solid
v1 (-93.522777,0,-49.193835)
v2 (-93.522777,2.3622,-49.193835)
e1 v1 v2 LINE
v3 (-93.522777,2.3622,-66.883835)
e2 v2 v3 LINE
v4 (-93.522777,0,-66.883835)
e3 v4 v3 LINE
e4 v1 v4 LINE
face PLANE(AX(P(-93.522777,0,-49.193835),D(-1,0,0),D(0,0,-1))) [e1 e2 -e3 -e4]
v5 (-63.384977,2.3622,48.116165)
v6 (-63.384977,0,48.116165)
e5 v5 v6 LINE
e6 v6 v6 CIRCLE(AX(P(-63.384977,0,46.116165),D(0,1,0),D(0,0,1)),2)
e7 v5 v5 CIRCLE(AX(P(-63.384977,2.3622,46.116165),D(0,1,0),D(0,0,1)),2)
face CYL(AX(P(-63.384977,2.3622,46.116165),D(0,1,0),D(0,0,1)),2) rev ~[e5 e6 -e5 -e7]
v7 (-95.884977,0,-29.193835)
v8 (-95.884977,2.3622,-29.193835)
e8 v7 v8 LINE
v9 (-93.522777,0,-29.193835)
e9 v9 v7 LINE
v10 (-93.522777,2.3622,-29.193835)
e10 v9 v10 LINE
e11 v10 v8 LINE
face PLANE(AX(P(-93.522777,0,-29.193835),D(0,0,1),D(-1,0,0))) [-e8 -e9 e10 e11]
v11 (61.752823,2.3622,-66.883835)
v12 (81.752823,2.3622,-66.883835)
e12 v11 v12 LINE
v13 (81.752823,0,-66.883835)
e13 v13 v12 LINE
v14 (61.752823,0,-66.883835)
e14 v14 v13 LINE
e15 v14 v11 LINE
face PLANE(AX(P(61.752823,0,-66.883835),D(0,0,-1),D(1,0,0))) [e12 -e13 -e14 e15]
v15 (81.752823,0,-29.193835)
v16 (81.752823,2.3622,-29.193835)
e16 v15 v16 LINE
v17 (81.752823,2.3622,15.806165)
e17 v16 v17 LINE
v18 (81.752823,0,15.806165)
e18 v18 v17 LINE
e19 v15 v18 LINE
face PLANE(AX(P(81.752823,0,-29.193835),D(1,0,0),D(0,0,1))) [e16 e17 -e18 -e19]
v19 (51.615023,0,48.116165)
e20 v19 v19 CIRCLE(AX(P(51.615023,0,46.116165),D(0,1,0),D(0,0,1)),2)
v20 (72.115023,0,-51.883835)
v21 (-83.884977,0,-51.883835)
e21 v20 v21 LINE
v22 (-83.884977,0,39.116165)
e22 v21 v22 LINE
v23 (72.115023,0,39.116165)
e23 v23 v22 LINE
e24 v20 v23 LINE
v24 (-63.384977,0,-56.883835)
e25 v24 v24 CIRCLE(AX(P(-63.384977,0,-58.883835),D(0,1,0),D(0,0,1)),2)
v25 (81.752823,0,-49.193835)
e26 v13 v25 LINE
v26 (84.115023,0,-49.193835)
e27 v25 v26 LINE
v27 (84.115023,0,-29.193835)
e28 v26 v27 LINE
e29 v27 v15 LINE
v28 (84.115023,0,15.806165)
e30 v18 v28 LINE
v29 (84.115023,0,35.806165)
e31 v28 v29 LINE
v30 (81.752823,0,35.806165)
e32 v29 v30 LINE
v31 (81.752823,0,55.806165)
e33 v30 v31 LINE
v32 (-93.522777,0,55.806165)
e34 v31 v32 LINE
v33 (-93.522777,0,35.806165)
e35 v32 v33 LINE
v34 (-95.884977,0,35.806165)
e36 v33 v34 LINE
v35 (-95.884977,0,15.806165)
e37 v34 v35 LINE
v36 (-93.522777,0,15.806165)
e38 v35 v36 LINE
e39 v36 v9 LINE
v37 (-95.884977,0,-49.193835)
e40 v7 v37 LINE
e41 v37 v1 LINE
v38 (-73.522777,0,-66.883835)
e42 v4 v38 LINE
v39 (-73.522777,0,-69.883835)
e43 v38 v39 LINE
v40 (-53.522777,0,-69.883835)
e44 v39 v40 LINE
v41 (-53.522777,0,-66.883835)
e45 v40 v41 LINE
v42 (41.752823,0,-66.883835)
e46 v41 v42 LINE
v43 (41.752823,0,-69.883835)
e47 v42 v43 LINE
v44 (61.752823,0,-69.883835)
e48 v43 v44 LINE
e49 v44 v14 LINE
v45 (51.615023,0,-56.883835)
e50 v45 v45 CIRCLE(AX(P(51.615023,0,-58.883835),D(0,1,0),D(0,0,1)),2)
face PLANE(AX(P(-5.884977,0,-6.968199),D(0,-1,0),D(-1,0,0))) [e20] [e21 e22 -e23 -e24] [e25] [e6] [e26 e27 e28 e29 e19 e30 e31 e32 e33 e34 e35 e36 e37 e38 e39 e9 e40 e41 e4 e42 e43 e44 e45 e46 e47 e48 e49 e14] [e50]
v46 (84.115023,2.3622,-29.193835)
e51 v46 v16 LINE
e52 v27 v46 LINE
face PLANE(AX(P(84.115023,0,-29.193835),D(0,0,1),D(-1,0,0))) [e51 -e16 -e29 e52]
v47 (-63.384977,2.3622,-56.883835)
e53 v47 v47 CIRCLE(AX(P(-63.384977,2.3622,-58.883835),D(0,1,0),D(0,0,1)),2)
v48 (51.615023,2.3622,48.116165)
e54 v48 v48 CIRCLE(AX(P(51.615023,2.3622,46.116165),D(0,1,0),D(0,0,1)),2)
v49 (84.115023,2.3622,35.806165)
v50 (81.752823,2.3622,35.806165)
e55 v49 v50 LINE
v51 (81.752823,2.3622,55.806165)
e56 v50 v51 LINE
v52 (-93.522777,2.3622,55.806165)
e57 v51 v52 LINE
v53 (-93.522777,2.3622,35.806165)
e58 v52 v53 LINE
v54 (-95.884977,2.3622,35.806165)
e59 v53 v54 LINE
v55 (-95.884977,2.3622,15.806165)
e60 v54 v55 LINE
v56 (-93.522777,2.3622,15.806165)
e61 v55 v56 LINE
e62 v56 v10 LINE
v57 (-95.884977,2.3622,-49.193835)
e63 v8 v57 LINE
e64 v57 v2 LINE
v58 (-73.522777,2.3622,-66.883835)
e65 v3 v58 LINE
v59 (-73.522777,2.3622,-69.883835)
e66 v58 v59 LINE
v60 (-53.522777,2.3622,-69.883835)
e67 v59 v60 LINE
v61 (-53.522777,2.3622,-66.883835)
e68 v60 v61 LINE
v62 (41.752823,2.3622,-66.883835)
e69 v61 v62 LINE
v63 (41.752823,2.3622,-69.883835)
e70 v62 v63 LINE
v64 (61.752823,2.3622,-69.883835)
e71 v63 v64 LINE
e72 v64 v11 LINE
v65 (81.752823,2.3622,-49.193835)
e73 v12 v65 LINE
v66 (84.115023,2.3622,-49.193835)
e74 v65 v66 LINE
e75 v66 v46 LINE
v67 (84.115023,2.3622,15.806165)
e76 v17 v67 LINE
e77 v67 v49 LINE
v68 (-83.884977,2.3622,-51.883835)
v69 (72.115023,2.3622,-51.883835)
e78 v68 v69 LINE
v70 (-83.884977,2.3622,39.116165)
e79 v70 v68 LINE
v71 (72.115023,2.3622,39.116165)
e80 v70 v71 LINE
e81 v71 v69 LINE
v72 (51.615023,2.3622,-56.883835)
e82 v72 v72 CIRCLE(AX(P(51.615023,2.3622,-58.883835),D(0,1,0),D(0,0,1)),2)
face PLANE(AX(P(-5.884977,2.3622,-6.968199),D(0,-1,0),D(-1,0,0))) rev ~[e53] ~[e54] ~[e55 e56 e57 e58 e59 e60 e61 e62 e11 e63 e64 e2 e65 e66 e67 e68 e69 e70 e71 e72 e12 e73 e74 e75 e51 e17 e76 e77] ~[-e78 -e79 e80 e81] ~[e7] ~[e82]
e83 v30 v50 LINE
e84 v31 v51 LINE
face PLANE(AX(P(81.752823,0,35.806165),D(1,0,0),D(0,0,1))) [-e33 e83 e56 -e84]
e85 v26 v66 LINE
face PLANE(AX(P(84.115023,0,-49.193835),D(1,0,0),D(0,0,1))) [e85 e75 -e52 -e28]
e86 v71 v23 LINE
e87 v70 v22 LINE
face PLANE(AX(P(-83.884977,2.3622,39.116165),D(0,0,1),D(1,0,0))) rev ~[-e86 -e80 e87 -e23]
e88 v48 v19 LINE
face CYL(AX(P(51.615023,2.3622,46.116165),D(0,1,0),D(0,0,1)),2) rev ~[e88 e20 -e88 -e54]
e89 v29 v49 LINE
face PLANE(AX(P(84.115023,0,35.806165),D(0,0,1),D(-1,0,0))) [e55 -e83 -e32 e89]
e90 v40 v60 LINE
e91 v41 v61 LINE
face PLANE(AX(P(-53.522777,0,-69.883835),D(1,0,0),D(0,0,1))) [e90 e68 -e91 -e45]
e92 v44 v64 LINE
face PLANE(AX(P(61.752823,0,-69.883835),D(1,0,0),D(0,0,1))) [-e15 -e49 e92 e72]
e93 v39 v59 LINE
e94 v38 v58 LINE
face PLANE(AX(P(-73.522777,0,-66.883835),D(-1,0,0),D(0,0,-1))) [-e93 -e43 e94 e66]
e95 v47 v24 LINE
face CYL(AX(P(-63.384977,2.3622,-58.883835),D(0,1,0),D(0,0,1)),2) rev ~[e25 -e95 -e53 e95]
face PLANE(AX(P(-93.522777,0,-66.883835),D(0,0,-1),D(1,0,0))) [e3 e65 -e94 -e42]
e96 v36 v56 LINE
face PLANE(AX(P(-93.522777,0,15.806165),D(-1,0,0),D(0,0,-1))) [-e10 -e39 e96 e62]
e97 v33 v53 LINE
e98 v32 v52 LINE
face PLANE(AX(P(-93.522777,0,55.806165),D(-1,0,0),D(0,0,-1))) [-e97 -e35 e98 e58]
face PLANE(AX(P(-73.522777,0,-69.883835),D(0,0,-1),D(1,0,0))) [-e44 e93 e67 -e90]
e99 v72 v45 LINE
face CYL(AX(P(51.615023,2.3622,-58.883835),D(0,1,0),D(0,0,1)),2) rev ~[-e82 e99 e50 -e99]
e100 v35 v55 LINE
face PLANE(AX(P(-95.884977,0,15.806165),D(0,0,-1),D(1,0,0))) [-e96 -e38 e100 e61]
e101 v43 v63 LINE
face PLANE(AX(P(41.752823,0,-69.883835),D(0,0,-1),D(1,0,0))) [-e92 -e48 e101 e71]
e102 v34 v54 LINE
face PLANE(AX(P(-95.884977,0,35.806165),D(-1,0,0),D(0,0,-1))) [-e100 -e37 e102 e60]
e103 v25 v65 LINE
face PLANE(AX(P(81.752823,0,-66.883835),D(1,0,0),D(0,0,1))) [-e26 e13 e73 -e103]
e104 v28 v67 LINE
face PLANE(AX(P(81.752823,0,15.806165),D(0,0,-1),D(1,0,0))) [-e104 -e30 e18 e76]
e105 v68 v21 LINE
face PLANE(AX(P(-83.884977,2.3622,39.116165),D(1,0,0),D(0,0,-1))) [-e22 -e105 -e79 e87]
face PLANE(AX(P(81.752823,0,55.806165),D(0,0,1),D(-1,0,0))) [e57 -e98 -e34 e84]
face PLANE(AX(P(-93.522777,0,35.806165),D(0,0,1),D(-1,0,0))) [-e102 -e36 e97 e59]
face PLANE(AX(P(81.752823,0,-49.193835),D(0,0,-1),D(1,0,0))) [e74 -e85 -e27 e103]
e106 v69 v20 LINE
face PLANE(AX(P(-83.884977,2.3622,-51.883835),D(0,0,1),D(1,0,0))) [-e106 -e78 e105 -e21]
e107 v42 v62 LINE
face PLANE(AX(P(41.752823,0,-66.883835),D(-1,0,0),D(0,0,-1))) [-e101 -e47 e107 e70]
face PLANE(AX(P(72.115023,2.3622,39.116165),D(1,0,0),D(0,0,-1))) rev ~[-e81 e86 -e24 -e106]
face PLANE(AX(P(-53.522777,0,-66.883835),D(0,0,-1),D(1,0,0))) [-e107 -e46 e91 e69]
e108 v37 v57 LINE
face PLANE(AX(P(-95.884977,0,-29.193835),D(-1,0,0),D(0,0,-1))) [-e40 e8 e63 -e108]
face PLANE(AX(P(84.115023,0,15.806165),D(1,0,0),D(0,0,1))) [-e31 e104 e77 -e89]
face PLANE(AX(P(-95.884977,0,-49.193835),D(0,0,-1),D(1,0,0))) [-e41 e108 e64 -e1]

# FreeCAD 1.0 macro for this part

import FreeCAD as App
import Part
import Sketcher

V = App.Vector
Q = App.Units.Quantity

doc = App.newDocument("Part")
body = doc.addObject("PartDesign::Body", "Body")

sketch1 = doc.addObject("Sketcher::SketchObject", "Sketch")
body.addObject(sketch1)
sketch1.AttachmentSupport = (doc.XZ_Plane, [""])
sketch1.MapMode = "FlatFace"
sketch1.addGeometry([
    Part.LineSegment(V(-73.522777, -66.883835, 0), V(-93.522777, -66.883835, 0)),
    Part.LineSegment(V(-93.522777, -66.883835, 0), V(-93.522777, -49.193835, 0)),
    Part.LineSegment(V(-93.522777, -49.193835, 0), V(-95.884977, -49.193835, 0)),
    Part.LineSegment(V(-95.884977, -49.193835, 0), V(-95.884977, -29.193835, 0)),
    Part.LineSegment(V(-95.884977, -29.193835, 0), V(-93.522777, -29.193835, 0)),
    Part.LineSegment(V(-93.522777, -29.193835, 0), V(-93.522777, 15.806165, 0)),
    Part.LineSegment(V(-93.522777, 15.806165, 0), V(-95.884977, 15.806165, 0)),
    Part.LineSegment(V(-95.884977, 15.806165, 0), V(-95.884977, 35.806165, 0)),
    Part.LineSegment(V(-95.884977, 35.806165, 0), V(-93.522777, 35.806165, 0)),
    Part.LineSegment(V(-93.522777, 35.806165, 0), V(-93.522777, 55.806165, 0)),
    Part.LineSegment(V(-93.522777, 55.806165, 0), V(81.752823, 55.806165, 0)),
    Part.LineSegment(V(81.752823, 55.806165, 0), V(81.752823, 35.806165, 0)),
    Part.LineSegment(V(81.752823, 35.806165, 0), V(84.115023, 35.806165, 0)),
    Part.LineSegment(V(84.115023, 35.806165, 0), V(84.115023, 15.806165, 0)),
    Part.LineSegment(V(84.115023, 15.806165, 0), V(81.752823, 15.806165, 0)),
    Part.LineSegment(V(81.752823, 15.806165, 0), V(81.752823, -29.193835, 0)),
    Part.LineSegment(V(81.752823, -29.193835, 0), V(84.115023, -29.193835, 0)),
    Part.LineSegment(V(84.115023, -29.193835, 0), V(84.115023, -49.193835, 0)),
    Part.LineSegment(V(84.115023, -49.193835, 0), V(81.752823, -49.193835, 0)),
    Part.LineSegment(V(81.752823, -49.193835, 0), V(81.752823, -66.883835, 0)),
    Part.LineSegment(V(81.752823, -66.883835, 0), V(61.752823, -66.883835, 0)),
    Part.LineSegment(V(61.752823, -66.883835, 0), V(61.752823, -69.883835, 0)),
    Part.LineSegment(V(61.752823, -69.883835, 0), V(41.752823, -69.883835, 0)),
    Part.LineSegment(V(41.752823, -69.883835, 0), V(41.752823, -66.883835, 0)),
    Part.LineSegment(V(41.752823, -66.883835, 0), V(-53.522777, -66.883835, 0)),
    Part.LineSegment(V(-53.522777, -66.883835, 0), V(-53.522777, -69.883835, 0)),
    Part.LineSegment(V(-53.522777, -69.883835, 0), V(-73.522777, -69.883835, 0)),
    Part.LineSegment(V(-73.522777, -69.883835, 0), V(-73.522777, -66.883835, 0)),
], False)
sketch1.addConstraint([
    Sketcher.Constraint("Coincident", 0, 2, 1, 1),
    Sketcher.Constraint("Coincident", 1, 2, 2, 1),
    Sketcher.Constraint("Coincident", 2, 2, 3, 1),
    Sketcher.Constraint("Coincident", 3, 2, 4, 1),
    Sketcher.Constraint("Coincident", 4, 2, 5, 1),
    Sketcher.Constraint("Coincident", 5, 2, 6, 1),
    Sketcher.Constraint("Coincident", 6, 2, 7, 1),
    Sketcher.Constraint("Coincident", 7, 2, 8, 1),
    Sketcher.Constraint("Coincident", 8, 2, 9, 1),
    Sketcher.Constraint("Coincident", 9, 2, 10, 1),
    Sketcher.Constraint("Coincident", 10, 2, 11, 1),
    Sketcher.Constraint("Coincident", 11, 2, 12, 1),
    Sketcher.Constraint("Coincident", 12, 2, 13, 1),
    Sketcher.Constraint("Coincident", 13, 2, 14, 1),
    Sketcher.Constraint("Coincident", 14, 2, 15, 1),
    Sketcher.Constraint("Coincident", 15, 2, 16, 1),
    Sketcher.Constraint("Coincident", 16, 2, 17, 1),
    Sketcher.Constraint("Coincident", 17, 2, 18, 1),
    Sketcher.Constraint("Coincident", 18, 2, 19, 1),
    Sketcher.Constraint("Coincident", 19, 2, 20, 1),
    Sketcher.Constraint("Coincident", 20, 2, 21, 1),
    Sketcher.Constraint("Coincident", 21, 2, 22, 1),
    Sketcher.Constraint("Coincident", 22, 2, 23, 1),
    Sketcher.Constraint("Coincident", 23, 2, 24, 1),
    Sketcher.Constraint("Coincident", 24, 2, 25, 1),
    Sketcher.Constraint("Coincident", 25, 2, 26, 1),
    Sketcher.Constraint("Coincident", 26, 2, 27, 1),
    Sketcher.Constraint("Coincident", 27, 2, 0, 1),
    Sketcher.Constraint("Horizontal", 0),
    Sketcher.Constraint("Vertical", 1),
    Sketcher.Constraint("Horizontal", 2),
    Sketcher.Constraint("Vertical", 3),
    Sketcher.Constraint("Horizontal", 4),
    Sketcher.Constraint("Vertical", 5),
    Sketcher.Constraint("Horizontal", 6),
    Sketcher.Constraint("Vertical", 7),
    Sketcher.Constraint("Horizontal", 8),
    Sketcher.Constraint("Vertical", 9),
    Sketcher.Constraint("Horizontal", 10),
    Sketcher.Constraint("Vertical", 11),
    Sketcher.Constraint("Horizontal", 12),
    Sketcher.Constraint("Vertical", 13),
    Sketcher.Constraint("Horizontal", 14),
    Sketcher.Constraint("Vertical", 15),
    Sketcher.Constraint("Horizontal", 16),
    Sketcher.Constraint("Vertical", 17),
    Sketcher.Constraint("Horizontal", 18),
    Sketcher.Constraint("Vertical", 19),
    Sketcher.Constraint("Horizontal", 20),
    Sketcher.Constraint("Vertical", 21),
    Sketcher.Constraint("Horizontal", 22),
    Sketcher.Constraint("Vertical", 23),
    Sketcher.Constraint("Horizontal", 24),
    Sketcher.Constraint("Vertical", 25),
    Sketcher.Constraint("Horizontal", 26),
    Sketcher.Constraint("Vertical", 27),
    Sketcher.Constraint("Horizontal", 8, 2, 11, 2),
    Sketcher.Constraint("Horizontal", 6, 2, 13, 2),
    Sketcher.Constraint("Horizontal", 4, 2, 15, 2),
    Sketcher.Constraint("Horizontal", 2, 2, 17, 2),
    Sketcher.Constraint("Horizontal", 0, 2, 19, 2),
    Sketcher.Constraint("Horizontal", 20, 2, 23, 2),
    Sketcher.Constraint("Horizontal", 22, 2, 25, 2),
    Sketcher.Constraint("Vertical", 1, 2, 4, 2),
    Sketcher.Constraint("Vertical", 3, 2, 6, 2),
    Sketcher.Constraint("Vertical", 5, 2, 8, 2),
    Sketcher.Constraint("Vertical", 11, 2, 14, 2),
    Sketcher.Constraint("Vertical", 13, 2, 16, 2),
    Sketcher.Constraint("Vertical", 15, 2, 18, 2),
    Sketcher.Constraint("Equal", 8, 12),
    Sketcher.Constraint("Equal", 0, 20),
    Sketcher.Constraint("Equal", 20, 22),
    Sketcher.Constraint("Equal", 22, 26),
    Sketcher.Constraint("Equal", 26, 3),
    Sketcher.Constraint("Equal", 3, 7),
    Sketcher.Constraint("Equal", 7, 9),
    Sketcher.Constraint("DistanceX", 0, 2, 0, 1, Q("20 mm")),
    Sketcher.Constraint("DistanceY", 5, 1, 5, 2, Q("45 mm")),
    Sketcher.Constraint("DistanceY", 21, 2, 21, 1, Q("3 mm")),
    Sketcher.Constraint("DistanceY", 1, 1, 1, 2, Q("17.69 mm")),
    Sketcher.Constraint("DistanceX", 2, 2, 2, 1, Q("2.3622 mm")),
    Sketcher.Constraint("DistanceX", 10, 1, 10, 2, Q("175.2756 mm")),
    Sketcher.Constraint("DistanceX", 0, 2, -1, 1, Q("93.522777 mm")),
    Sketcher.Constraint("DistanceY", 0, 2, -1, 1, Q("66.883835 mm")),
])
pad1 = doc.addObject("PartDesign::Pad", "Pad")
body.addObject(pad1)
pad1.Profile = sketch1
pad1.Length = 2.3622
pad1.Reversed = True

sketch2 = doc.addObject("Sketcher::SketchObject", "Sketch001")
body.addObject(sketch2)
sketch2.AttachmentSupport = (doc.XZ_Plane, [""])
sketch2.MapMode = "FlatFace"
sketch2.AttachmentOffset = App.Placement(V(0, 0, -2.3622), App.Rotation())
sketch2.addGeometry([
    Part.Circle(V(-63.384977, -58.883835, 0), V(0, 0, 1), 2),
    Part.Circle(V(51.615023, -58.883835, 0), V(0, 0, 1), 2),
    Part.Circle(V(-63.384977, 46.116165, 0), V(0, 0, 1), 2),
    Part.Circle(V(51.615023, 46.116165, 0), V(0, 0, 1), 2),
    Part.LineSegment(V(-83.884977, -51.883835, 0), V(-83.884977, 39.116165, 0)),
    Part.LineSegment(V(-83.884977, 39.116165, 0), V(72.115023, 39.116165, 0)),
    Part.LineSegment(V(72.115023, 39.116165, 0), V(72.115023, -51.883835, 0)),
    Part.LineSegment(V(72.115023, -51.883835, 0), V(-83.884977, -51.883835, 0)),
], False)
sketch2.addConstraint([
    Sketcher.Constraint("Coincident", 4, 2, 5, 1),
    Sketcher.Constraint("Coincident", 5, 2, 6, 1),
    Sketcher.Constraint("Coincident", 6, 2, 7, 1),
    Sketcher.Constraint("Coincident", 7, 2, 4, 1),
    Sketcher.Constraint("Vertical", 4),
    Sketcher.Constraint("Horizontal", 5),
    Sketcher.Constraint("Vertical", 6),
    Sketcher.Constraint("Horizontal", 7),
    Sketcher.Constraint("Equal", 0, 1),
    Sketcher.Constraint("Equal", 1, 2),
    Sketcher.Constraint("Equal", 2, 3),
    Sketcher.Constraint("Horizontal", 0, 3, 1, 3),
    Sketcher.Constraint("Horizontal", 2, 3, 3, 3),
    Sketcher.Constraint("Vertical", 0, 3, 2, 3),
    Sketcher.Constraint("Vertical", 1, 3, 3, 3),
    Sketcher.Constraint("Diameter", 0, Q("4 mm")),
    Sketcher.Constraint("DistanceX", 5, 1, 5, 2, Q("156 mm")),
    Sketcher.Constraint("DistanceY", 4, 1, 4, 2, Q("91 mm")),
    Sketcher.Constraint("DistanceX", 0, 3, 1, 3, Q("115 mm")),
    Sketcher.Constraint("DistanceY", 0, 3, 2, 3, Q("105 mm")),
    Sketcher.Constraint("DistanceY", 4, 2, 2, 3, Q("7 mm")),
    Sketcher.Constraint("DistanceX", 4, 2, 2, 3, Q("20.5 mm")),
    Sketcher.Constraint("DistanceX", 0, 3, -1, 1, Q("63.384977 mm")),
    Sketcher.Constraint("DistanceY", 0, 3, -1, 1, Q("58.883835 mm")),
])
pocket1 = doc.addObject("PartDesign::Pocket", "Pocket")
body.addObject(pocket1)
pocket1.Profile = sketch2
pocket1.Type = "ThroughAll"
pocket1.Reversed = True

doc.recompute()
